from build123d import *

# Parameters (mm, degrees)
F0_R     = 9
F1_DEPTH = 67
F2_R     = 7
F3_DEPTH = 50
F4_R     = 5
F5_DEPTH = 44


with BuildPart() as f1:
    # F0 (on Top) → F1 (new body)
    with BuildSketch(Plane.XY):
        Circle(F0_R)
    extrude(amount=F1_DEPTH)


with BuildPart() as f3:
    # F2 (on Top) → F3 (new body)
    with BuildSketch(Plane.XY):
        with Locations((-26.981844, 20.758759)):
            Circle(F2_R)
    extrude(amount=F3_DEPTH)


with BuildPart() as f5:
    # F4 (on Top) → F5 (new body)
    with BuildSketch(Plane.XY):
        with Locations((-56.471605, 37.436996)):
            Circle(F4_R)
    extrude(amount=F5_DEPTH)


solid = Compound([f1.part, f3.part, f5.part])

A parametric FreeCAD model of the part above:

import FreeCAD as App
import Part
import Sketcher

V = App.Vector
Q = App.Units.Quantity

doc = App.newDocument("Part")
params = doc.addObject("Spreadsheet::Sheet", "Params")
for row, (alias, value) in enumerate([
    ("sketch1_diameter", "18 mm"),
    ("pad1_length", "67 mm"),
    ("sketch2_diameter", "14 mm"),
    ("pad2_length", "50 mm"),
    ("sketch3_diameter", "10 mm"),
    ("pad3_length", "44 mm"),
], start=1):
    params.set(f"A{row}", alias)
    params.set(f"B{row}", "=" + value)
    params.setAlias(f"B{row}", alias)

body = doc.addObject("PartDesign::Body", "Body")

sketch1 = body.newObject("Sketcher::SketchObject", "Sketch")
sketch1.AttachmentSupport = (doc.getObject("XY_Plane"), [""])
sketch1.MapMode = "FlatFace"
sketch1.addGeometry(Part.Circle(V(0, 0, 0), V(0, 0, 1), 9), False)
sketch1.addConstraint([
    Sketcher.Constraint("Coincident", 0, 3, -1, 1),
    Sketcher.Constraint("Diameter", 0, Q("18 mm")),
])
sketch1.setExpression("Constraints[1]", "Params.sketch1_diameter")
pad1 = body.newObject("PartDesign::Pad", "Pad")
pad1.Profile = sketch1
pad1.setExpression("Length", "Params.pad1_length")
body2 = doc.addObject("PartDesign::Body", "Body001")

sketch2 = body2.newObject("Sketcher::SketchObject", "Sketch001")
sketch2.AttachmentSupport = (doc.getObject("XY_Plane001"), [""])
sketch2.MapMode = "FlatFace"
sketch2.addGeometry(Part.Circle(V(-27, 21, 0), V(0, 0, 1), 7), False)
sketch2.addConstraint([
    Sketcher.Constraint("Diameter", 0, Q("14 mm")),
    Sketcher.Constraint("DistanceY", -1, 1, 0, 3, Q("20.758759 mm")),
    Sketcher.Constraint("DistanceX", 0, 3, -1, 1, Q("26.981844 mm")),
])
sketch2.setExpression("Constraints[0]", "Params.sketch2_diameter")
pad2 = body2.newObject("PartDesign::Pad", "Pad001")
pad2.Profile = sketch2
pad2.setExpression("Length", "Params.pad2_length")
body3 = doc.addObject("PartDesign::Body", "Body002")

sketch3 = body3.newObject("Sketcher::SketchObject", "Sketch002")
sketch3.AttachmentSupport = (doc.getObject("XY_Plane002"), [""])
sketch3.MapMode = "FlatFace"
sketch3.addGeometry(Part.Circle(V(-56, 37, 0), V(0, 0, 1), 5), False)
sketch3.addConstraint([
    Sketcher.Constraint("Diameter", 0, Q("10 mm")),
    Sketcher.Constraint("DistanceX", 0, 3, -1, 1, Q("56.471605 mm")),
    Sketcher.Constraint("DistanceY", -1, 1, 0, 3, Q("37.436996 mm")),
])
sketch3.setExpression("Constraints[0]", "Params.sketch3_diameter")
pad3 = body3.newObject("PartDesign::Pad", "Pad002")
pad3.Profile = sketch3
pad3.setExpression("Length", "Params.pad3_length")

doc.recompute()
